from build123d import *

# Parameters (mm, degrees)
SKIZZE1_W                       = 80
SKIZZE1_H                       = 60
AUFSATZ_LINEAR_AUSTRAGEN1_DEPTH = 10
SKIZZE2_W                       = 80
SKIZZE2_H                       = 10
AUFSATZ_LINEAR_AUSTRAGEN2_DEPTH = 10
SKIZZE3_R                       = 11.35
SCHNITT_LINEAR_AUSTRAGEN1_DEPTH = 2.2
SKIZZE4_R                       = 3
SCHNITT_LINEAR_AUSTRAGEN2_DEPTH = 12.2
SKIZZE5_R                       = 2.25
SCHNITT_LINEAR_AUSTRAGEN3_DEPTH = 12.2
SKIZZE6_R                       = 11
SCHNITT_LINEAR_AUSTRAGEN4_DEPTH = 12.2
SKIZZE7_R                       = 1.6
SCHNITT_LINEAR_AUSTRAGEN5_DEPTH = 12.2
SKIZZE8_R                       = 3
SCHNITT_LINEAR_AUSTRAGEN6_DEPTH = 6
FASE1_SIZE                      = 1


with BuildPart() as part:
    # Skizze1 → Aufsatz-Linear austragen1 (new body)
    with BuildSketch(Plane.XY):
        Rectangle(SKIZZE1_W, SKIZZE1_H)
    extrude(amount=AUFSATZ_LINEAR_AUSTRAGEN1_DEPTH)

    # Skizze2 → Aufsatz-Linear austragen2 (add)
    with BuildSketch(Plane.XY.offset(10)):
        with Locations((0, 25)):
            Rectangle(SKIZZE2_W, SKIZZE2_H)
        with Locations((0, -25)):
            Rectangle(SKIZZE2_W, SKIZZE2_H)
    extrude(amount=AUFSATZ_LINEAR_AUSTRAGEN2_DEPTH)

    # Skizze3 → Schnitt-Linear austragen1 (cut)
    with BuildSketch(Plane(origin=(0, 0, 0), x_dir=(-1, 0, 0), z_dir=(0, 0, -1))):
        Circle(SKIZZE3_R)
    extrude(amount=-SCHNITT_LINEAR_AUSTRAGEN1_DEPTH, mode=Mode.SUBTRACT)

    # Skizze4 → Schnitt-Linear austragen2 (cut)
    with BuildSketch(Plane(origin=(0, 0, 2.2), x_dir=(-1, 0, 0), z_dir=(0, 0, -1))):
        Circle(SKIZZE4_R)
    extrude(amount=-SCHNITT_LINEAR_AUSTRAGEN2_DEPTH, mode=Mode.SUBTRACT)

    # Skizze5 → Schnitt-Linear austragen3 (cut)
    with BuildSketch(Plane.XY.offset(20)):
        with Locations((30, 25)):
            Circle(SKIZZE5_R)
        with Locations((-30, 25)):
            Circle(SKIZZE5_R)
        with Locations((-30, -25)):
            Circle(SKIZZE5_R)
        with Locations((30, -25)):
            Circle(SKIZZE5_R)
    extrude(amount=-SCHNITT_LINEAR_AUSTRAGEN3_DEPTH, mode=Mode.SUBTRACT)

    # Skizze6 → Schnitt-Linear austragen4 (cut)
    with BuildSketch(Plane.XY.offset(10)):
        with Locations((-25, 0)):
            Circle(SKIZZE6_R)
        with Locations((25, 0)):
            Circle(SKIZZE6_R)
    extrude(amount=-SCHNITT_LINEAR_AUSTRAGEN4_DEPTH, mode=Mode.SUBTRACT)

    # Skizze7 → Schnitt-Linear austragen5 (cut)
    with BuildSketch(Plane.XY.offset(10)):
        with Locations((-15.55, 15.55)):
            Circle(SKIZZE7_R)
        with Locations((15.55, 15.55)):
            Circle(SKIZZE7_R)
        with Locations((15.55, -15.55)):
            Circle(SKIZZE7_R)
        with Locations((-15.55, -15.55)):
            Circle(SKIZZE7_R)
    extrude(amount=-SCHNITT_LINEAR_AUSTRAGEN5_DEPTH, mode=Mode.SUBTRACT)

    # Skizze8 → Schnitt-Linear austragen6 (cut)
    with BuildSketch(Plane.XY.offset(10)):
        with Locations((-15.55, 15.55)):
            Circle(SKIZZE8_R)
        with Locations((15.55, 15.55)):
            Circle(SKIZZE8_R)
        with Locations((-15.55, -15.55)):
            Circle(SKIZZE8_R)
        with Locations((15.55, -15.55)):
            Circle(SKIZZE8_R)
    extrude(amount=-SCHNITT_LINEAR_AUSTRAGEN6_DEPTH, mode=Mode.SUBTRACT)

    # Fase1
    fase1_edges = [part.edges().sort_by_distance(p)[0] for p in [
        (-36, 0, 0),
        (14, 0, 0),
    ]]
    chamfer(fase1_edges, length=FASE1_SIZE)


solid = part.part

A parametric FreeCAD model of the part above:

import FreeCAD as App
import Part
import Sketcher
Q = App.Units.Quantity


def edges_at(feature, points):
    """Names of the edges that pass closest to the given points."""
    edges = feature.Shape.Edges
    near = lambda p: min(range(len(edges)), key=lambda i: edges[i].distToShape(Part.Vertex(*p))[0])
    return sorted({f"Edge{near(p) + 1}" for p in points})


def add_polygon(sketch, points):
    """Adds a closed chain of lines whose ends are joined by coincident constraints."""
    first, n = sketch.GeometryCount, len(points)
    for a, b in zip(points, points[1:] + points[:1]):
        sketch.addGeometry(Part.LineSegment(App.Vector(*a, 0), App.Vector(*b, 0)), False)
    for i in range(n):
        sketch.addConstraint(Sketcher.Constraint("Coincident", first + i, 2, first + (i + 1) % n, 1))

doc = App.newDocument("Part")
body = doc.addObject("PartDesign::Body", "Body")

sketch1 = body.newObject("Sketcher::SketchObject", "Sketch")
sketch1.AttachmentSupport = (doc.getObject("XY_Plane"), [""])
sketch1.MapMode = "FlatFace"
add_polygon(sketch1, [(-40, 30), (-40, -30), (40, -30), (40, 30)])
sketch1.addConstraint([
    Sketcher.Constraint("Vertical", 0),
    Sketcher.Constraint("Horizontal", 1),
    Sketcher.Constraint("Vertical", 2),
    Sketcher.Constraint("Horizontal", 3),
    Sketcher.Constraint("Symmetric", 0, 2, 2, 2, -1, 1),
    Sketcher.Constraint("DistanceX", 1, 1, 1, 2, Q("80 mm")),
    Sketcher.Constraint("DistanceY", 0, 2, 0, 1, Q("60 mm")),
])
pad1 = body.newObject("PartDesign::Pad", "Pad")
pad1.Profile = sketch1
pad1.Length = 10

sketch2 = body.newObject("Sketcher::SketchObject", "Sketch001")
sketch2.AttachmentSupport = (doc.getObject("XY_Plane"), [""])
sketch2.MapMode = "FlatFace"
sketch2.AttachmentOffset = App.Placement(App.Vector(0, 0, 10), App.Rotation())
add_polygon(sketch2, [(-40, 30), (-40, 20), (40, 20), (40, 30)])
add_polygon(sketch2, [(-40, -20), (-40, -30), (40, -30), (40, -20)])
sketch2.addConstraint([
    Sketcher.Constraint("Vertical", 0),
    Sketcher.Constraint("Horizontal", 1),
    Sketcher.Constraint("Vertical", 2),
    Sketcher.Constraint("Horizontal", 3),
    Sketcher.Constraint("Vertical", 4),
    Sketcher.Constraint("Horizontal", 5),
    Sketcher.Constraint("Vertical", 6),
    Sketcher.Constraint("Horizontal", 7),
    Sketcher.Constraint("Symmetric", 2, 2, 4, 2, -1, 1),
    Sketcher.Constraint("Symmetric", 0, 2, 6, 2, -1, 1),
    Sketcher.Constraint("Vertical", 3, 2, 4, 2),
    Sketcher.Constraint("DistanceX", 1, 1, 1, 2, Q("80 mm")),
    Sketcher.Constraint("DistanceY", 0, 2, 0, 1, Q("10 mm")),
    Sketcher.Constraint("DistanceY", -1, 1, 0, 2, Q("20 mm")),
])
pad2 = body.newObject("PartDesign::Pad", "Pad001")
pad2.Profile = sketch2
pad2.Length = 10

sketch3 = body.newObject("Sketcher::SketchObject", "Sketch002")
sketch3.AttachmentSupport = (doc.getObject("XY_Plane"), [""])
sketch3.MapMode = "FlatFace"
sketch3.addGeometry(Part.Circle(App.Vector(0, 0, 0), App.Vector(0, 0, 1), 11.35), False)
sketch3.addConstraint([
    Sketcher.Constraint("Coincident", 0, 3, -1, 1),
    Sketcher.Constraint("Diameter", 0, Q("22.7 mm")),
])
pocket1 = body.newObject("PartDesign::Pocket", "Pocket")
pocket1.Profile = sketch3
pocket1.Length = 2.2
pocket1.Reversed = True

sketch4 = body.newObject("Sketcher::SketchObject", "Sketch003")
sketch4.AttachmentSupport = (doc.getObject("XY_Plane"), [""])
sketch4.MapMode = "FlatFace"
sketch4.AttachmentOffset = App.Placement(App.Vector(0, 0, 2.2), App.Rotation())
sketch4.addGeometry(Part.Circle(App.Vector(0, 0, 0), App.Vector(0, 0, 1), 3), False)
sketch4.addConstraint([
    Sketcher.Constraint("Coincident", 0, 3, -1, 1),
    Sketcher.Constraint("Diameter", 0, Q("6 mm")),
])
pocket2 = body.newObject("PartDesign::Pocket", "Pocket001")
pocket2.Profile = sketch4
pocket2.Length = 12.2
pocket2.Reversed = True

sketch5 = body.newObject("Sketcher::SketchObject", "Sketch004")
sketch5.AttachmentSupport = (doc.getObject("XY_Plane"), [""])
sketch5.MapMode = "FlatFace"
sketch5.AttachmentOffset = App.Placement(App.Vector(0, 0, 20), App.Rotation())
sketch5.addGeometry([
    Part.Circle(App.Vector(30, 25, 0), App.Vector(0, 0, 1), 2.25),
    Part.Circle(App.Vector(-30, 25, 0), App.Vector(0, 0, 1), 2.25),
    Part.Circle(App.Vector(-30, -25, 0), App.Vector(0, 0, 1), 2.25),
    Part.Circle(App.Vector(30, -25, 0), App.Vector(0, 0, 1), 2.25),
], False)
sketch5.addConstraint([
    Sketcher.Constraint("Equal", 0, 1),
    Sketcher.Constraint("Equal", 1, 2),
    Sketcher.Constraint("Equal", 2, 3),
    Sketcher.Constraint("Symmetric", 0, 3, 2, 3, -1, 1),
    Sketcher.Constraint("Symmetric", 1, 3, 3, 3, -1, 1),
    Sketcher.Constraint("Symmetric", 0, 3, 1, 3, -2),
    Sketcher.Constraint("Diameter", 0, Q("4.5 mm")),
    Sketcher.Constraint("DistanceX", -1, 1, 0, 3, Q("30 mm")),
    Sketcher.Constraint("DistanceY", -1, 1, 0, 3, Q("25 mm")),
])
pocket3 = body.newObject("PartDesign::Pocket", "Pocket002")
pocket3.Profile = sketch5
pocket3.Length = 12.2

sketch6 = body.newObject("Sketcher::SketchObject", "Sketch005")
sketch6.AttachmentSupport = (doc.getObject("XY_Plane"), [""])
sketch6.MapMode = "FlatFace"
sketch6.AttachmentOffset = App.Placement(App.Vector(0, 0, 10), App.Rotation())
sketch6.addGeometry([
    Part.Circle(App.Vector(-25, 0, 0), App.Vector(0, 0, 1), 11),
    Part.Circle(App.Vector(25, 0, 0), App.Vector(0, 0, 1), 11),
], False)
sketch6.addConstraint([
    Sketcher.Constraint("Equal", 0, 1),
    Sketcher.Constraint("Symmetric", 0, 3, 1, 3, -1, 1),
    Sketcher.Constraint("PointOnObject", 0, 3, -1),
    Sketcher.Constraint("Diameter", 0, Q("22 mm")),
    Sketcher.Constraint("DistanceX", 0, 3, -1, 1, Q("25 mm")),
])
pocket4 = body.newObject("PartDesign::Pocket", "Pocket003")
pocket4.Profile = sketch6
pocket4.Length = 12.2

sketch7 = body.newObject("Sketcher::SketchObject", "Sketch006")
sketch7.AttachmentSupport = (doc.getObject("XY_Plane"), [""])
sketch7.MapMode = "FlatFace"
sketch7.AttachmentOffset = App.Placement(App.Vector(0, 0, 10), App.Rotation())
sketch7.addGeometry([
    Part.Circle(App.Vector(-15.55, 15.55, 0), App.Vector(0, 0, 1), 1.6),
    Part.Circle(App.Vector(15.55, 15.55, 0), App.Vector(0, 0, 1), 1.6),
    Part.Circle(App.Vector(15.55, -15.55, 0), App.Vector(0, 0, 1), 1.6),
    Part.Circle(App.Vector(-15.55, -15.55, 0), App.Vector(0, 0, 1), 1.6),
], False)
sketch7.addConstraint([
    Sketcher.Constraint("Equal", 0, 1),
    Sketcher.Constraint("Equal", 1, 2),
    Sketcher.Constraint("Equal", 2, 3),
    Sketcher.Constraint("Symmetric", 0, 3, 2, 3, -1, 1),
    Sketcher.Constraint("Symmetric", 1, 3, 3, 3, -1, 1),
    Sketcher.Constraint("Symmetric", 0, 3, 1, 3, -2),
    Sketcher.Constraint("Diameter", 0, Q("3.2 mm")),
    Sketcher.Constraint("DistanceX", 0, 3, 1, 3, Q("31.1 mm")),
    Sketcher.Constraint("DistanceY", 2, 3, 1, 3, Q("31.1 mm")),
])
pocket5 = body.newObject("PartDesign::Pocket", "Pocket004")
pocket5.Profile = sketch7
pocket5.Length = 12.2

sketch8 = body.newObject("Sketcher::SketchObject", "Sketch007")
sketch8.AttachmentSupport = (doc.getObject("XY_Plane"), [""])
sketch8.MapMode = "FlatFace"
sketch8.AttachmentOffset = App.Placement(App.Vector(0, 0, 10), App.Rotation())
sketch8.addGeometry([
    Part.Circle(App.Vector(-15.55, 15.55, 0), App.Vector(0, 0, 1), 3),
    Part.Circle(App.Vector(15.55, 15.55, 0), App.Vector(0, 0, 1), 3),
    Part.Circle(App.Vector(-15.55, -15.55, 0), App.Vector(0, 0, 1), 3),
    Part.Circle(App.Vector(15.55, -15.55, 0), App.Vector(0, 0, 1), 3),
], False)
sketch8.addConstraint([
    Sketcher.Constraint("Equal", 0, 1),
    Sketcher.Constraint("Equal", 1, 2),
    Sketcher.Constraint("Equal", 2, 3),
    Sketcher.Constraint("Symmetric", 1, 3, 2, 3, -1, 1),
    Sketcher.Constraint("Symmetric", 0, 3, 3, 3, -1, 1),
    Sketcher.Constraint("Symmetric", 0, 3, 1, 3, -2),
    Sketcher.Constraint("Diameter", 0, Q("6 mm")),
    Sketcher.Constraint("DistanceX", 0, 3, 1, 3, Q("31.1 mm")),
    Sketcher.Constraint("DistanceY", 2, 3, 0, 3, Q("31.1 mm")),
])
pocket6 = body.newObject("PartDesign::Pocket", "Pocket005")
pocket6.Profile = sketch8
pocket6.Length = 6
doc.recompute()

chamfer = body.newObject("PartDesign::Chamfer", "Chamfer")
chamfer.Base = (pocket6, edges_at(pocket6, [(-36, 0, 0), (14, 0, 0)]))
chamfer.Size = 1

doc.recompute()
